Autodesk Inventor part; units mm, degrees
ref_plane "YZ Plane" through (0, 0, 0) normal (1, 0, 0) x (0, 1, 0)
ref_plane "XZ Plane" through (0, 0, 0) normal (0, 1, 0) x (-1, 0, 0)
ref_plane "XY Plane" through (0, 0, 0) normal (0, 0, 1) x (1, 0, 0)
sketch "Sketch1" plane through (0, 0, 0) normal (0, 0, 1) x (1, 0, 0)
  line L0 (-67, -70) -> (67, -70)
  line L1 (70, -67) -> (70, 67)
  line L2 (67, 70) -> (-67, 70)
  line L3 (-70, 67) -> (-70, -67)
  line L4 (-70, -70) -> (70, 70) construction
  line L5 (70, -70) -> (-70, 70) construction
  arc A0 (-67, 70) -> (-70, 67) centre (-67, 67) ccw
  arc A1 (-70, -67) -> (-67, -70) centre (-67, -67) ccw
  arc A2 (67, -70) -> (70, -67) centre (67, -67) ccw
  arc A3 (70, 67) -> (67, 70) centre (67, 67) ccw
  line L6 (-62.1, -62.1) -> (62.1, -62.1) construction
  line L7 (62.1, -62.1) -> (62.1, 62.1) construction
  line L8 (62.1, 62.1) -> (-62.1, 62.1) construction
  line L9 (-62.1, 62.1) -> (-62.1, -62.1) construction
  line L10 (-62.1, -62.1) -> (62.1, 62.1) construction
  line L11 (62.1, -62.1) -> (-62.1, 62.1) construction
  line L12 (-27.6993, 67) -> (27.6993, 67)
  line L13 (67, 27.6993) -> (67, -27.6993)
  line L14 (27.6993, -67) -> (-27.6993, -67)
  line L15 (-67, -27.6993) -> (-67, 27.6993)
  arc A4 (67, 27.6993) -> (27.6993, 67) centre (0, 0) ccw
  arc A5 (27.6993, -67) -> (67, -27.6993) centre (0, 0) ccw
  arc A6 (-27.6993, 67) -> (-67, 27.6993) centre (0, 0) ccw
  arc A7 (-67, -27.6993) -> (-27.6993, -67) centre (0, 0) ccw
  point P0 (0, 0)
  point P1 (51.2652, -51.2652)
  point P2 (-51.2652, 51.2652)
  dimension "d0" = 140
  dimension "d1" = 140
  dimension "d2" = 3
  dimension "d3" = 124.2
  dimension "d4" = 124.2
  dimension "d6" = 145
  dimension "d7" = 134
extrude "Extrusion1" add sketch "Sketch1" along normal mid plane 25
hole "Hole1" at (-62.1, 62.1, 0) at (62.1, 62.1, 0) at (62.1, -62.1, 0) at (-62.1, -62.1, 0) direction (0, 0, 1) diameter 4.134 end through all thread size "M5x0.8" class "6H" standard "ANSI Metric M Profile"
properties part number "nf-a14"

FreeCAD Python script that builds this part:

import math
import FreeCAD as App
import Part
import Sketcher

V = App.Vector

doc = App.newDocument("Part")
body = doc.addObject("PartDesign::Body", "Body")

# Sketch on XY plane
sketch1 = body.newObject("Sketcher::SketchObject", "Sketch")
sketch1.AttachmentSupport = (doc.getObject("XY_Plane"), [""])
sketch1.MapMode = "FlatFace"
sketch1.addGeometry(Part.ArcOfCircle(Part.Circle(V(-67, -67, 0), V(0, 0, 1), 3), math.radians(180), math.radians(270)), False)
sketch1.addGeometry(Part.LineSegment(V(-67, -70, 0), V(67, -70, 0)), False)
sketch1.addGeometry(Part.ArcOfCircle(Part.Circle(V(67, -67, 0), V(0, 0, 1), 3), math.radians(-90), math.radians(0)), False)
sketch1.addGeometry(Part.LineSegment(V(70, -67, 0), V(70, 67, 0)), False)
sketch1.addGeometry(Part.ArcOfCircle(Part.Circle(V(67, 67, 0), V(0, 0, 1), 3), math.radians(0), math.radians(90)), False)
sketch1.addGeometry(Part.LineSegment(V(67, 70, 0), V(-67, 70, 0)), False)
sketch1.addGeometry(Part.ArcOfCircle(Part.Circle(V(-67, 67, 0), V(0, 0, 1), 3), math.radians(90), math.radians(180)), False)
sketch1.addGeometry(Part.LineSegment(V(-70, 67, 0), V(-70, -67, 0)), False)
sketch1.addGeometry(Part.ArcOfCircle(Part.Circle(V(0, 0, 0), V(0, 0, 1), 72.5), math.radians(112), math.radians(158)), False)
sketch1.addGeometry(Part.LineSegment(V(-27.7, 67, 0), V(27.7, 67, 0)), False)
sketch1.addGeometry(Part.ArcOfCircle(Part.Circle(V(0, 0, 0), V(0, 0, 1), 72.5), math.radians(22), math.radians(68)), False)
sketch1.addGeometry(Part.LineSegment(V(67, 27.7, 0), V(67, -27.7, 0)), False)
sketch1.addGeometry(Part.ArcOfCircle(Part.Circle(V(0, 0, 0), V(0, 0, 1), 72.5), math.radians(-68), math.radians(-22)), False)
sketch1.addGeometry(Part.LineSegment(V(27.7, -67, 0), V(-27.7, -67, 0)), False)
sketch1.addGeometry(Part.ArcOfCircle(Part.Circle(V(0, 0, 0), V(0, 0, 1), 72.5), math.radians(-158), math.radians(-112)), False)
sketch1.addGeometry(Part.LineSegment(V(-67, -27.7, 0), V(-67, 27.7, 0)), False)
sketch1.addConstraint(Sketcher.Constraint("Tangent", 0, 2, 1, 1))
sketch1.addConstraint(Sketcher.Constraint("Tangent", 1, 2, 2, 1))
sketch1.addConstraint(Sketcher.Constraint("Tangent", 2, 2, 3, 1))
sketch1.addConstraint(Sketcher.Constraint("Tangent", 3, 2, 4, 1))
sketch1.addConstraint(Sketcher.Constraint("Tangent", 4, 2, 5, 1))
sketch1.addConstraint(Sketcher.Constraint("Tangent", 5, 2, 6, 1))
sketch1.addConstraint(Sketcher.Constraint("Tangent", 6, 2, 7, 1))
sketch1.addConstraint(Sketcher.Constraint("Tangent", 7, 2, 0, 1))
sketch1.addConstraint(Sketcher.Constraint("Coincident", 8, 1, 9, 1))
sketch1.addConstraint(Sketcher.Constraint("Coincident", 9, 2, 10, 2))
sketch1.addConstraint(Sketcher.Constraint("Coincident", 10, 1, 11, 1))
sketch1.addConstraint(Sketcher.Constraint("Coincident", 11, 2, 12, 2))
sketch1.addConstraint(Sketcher.Constraint("Coincident", 12, 1, 13, 1))
sketch1.addConstraint(Sketcher.Constraint("Coincident", 13, 2, 14, 2))
sketch1.addConstraint(Sketcher.Constraint("Coincident", 14, 1, 15, 1))
sketch1.addConstraint(Sketcher.Constraint("Coincident", 15, 2, 8, 2))
sketch1.addConstraint(Sketcher.Constraint("Horizontal", 1))
sketch1.addConstraint(Sketcher.Constraint("Vertical", 3))
sketch1.addConstraint(Sketcher.Constraint("Horizontal", 5))
sketch1.addConstraint(Sketcher.Constraint("Vertical", 7))
sketch1.addConstraint(Sketcher.Constraint("Horizontal", 9))
sketch1.addConstraint(Sketcher.Constraint("Vertical", 11))
sketch1.addConstraint(Sketcher.Constraint("Horizontal", 13))
sketch1.addConstraint(Sketcher.Constraint("Vertical", 15))
sketch1.addConstraint(Sketcher.Constraint("Coincident", 8, 3, -1, 1))
sketch1.addConstraint(Sketcher.Constraint("Coincident", 10, 3, -1, 1))
sketch1.addConstraint(Sketcher.Constraint("Coincident", 12, 3, -1, 1))
sketch1.addConstraint(Sketcher.Constraint("Coincident", 14, 3, -1, 1))
sketch1.addConstraint(Sketcher.Constraint("Equal", 0, 2))
sketch1.addConstraint(Sketcher.Constraint("Equal", 2, 4))
sketch1.addConstraint(Sketcher.Constraint("Equal", 4, 6))
sketch1.addConstraint(Sketcher.Constraint("Equal", 8, 10))
sketch1.addConstraint(Sketcher.Constraint("Equal", 10, 12))
sketch1.addConstraint(Sketcher.Constraint("Equal", 12, 14))
sketch1.addConstraint(Sketcher.Constraint("Symmetric", 0, 3, 4, 3, -1, 1))
sketch1.addConstraint(Sketcher.Constraint("Horizontal", 6, 2, 8, 1))
sketch1.addConstraint(Sketcher.Constraint("Horizontal", 7, 2, 12, 1))
sketch1.addConstraint(Sketcher.Constraint("Horizontal", 11, 2, 14, 1))
sketch1.addConstraint(Sketcher.Constraint("Vertical", 4, 2, 10, 1))
sketch1.addConstraint(Sketcher.Constraint("Equal", 5, 3))
sketch1.addConstraint(Sketcher.Constraint("Radius", 0, 3.0))
sketch1.addConstraint(Sketcher.Constraint("Radius", 8, 72.5))
sketch1.addConstraint(Sketcher.Constraint("DistanceX", 1, 1, 1, 2, 134.0))
pad1 = body.newObject("PartDesign::Pad", "Pad")
pad1.Profile = sketch1
pad1.Length = 25
pad1.Midplane = True

# Sketch on XY plane
sketch2 = body.newObject("Sketcher::SketchObject", "Sketch001")
sketch2.AttachmentSupport = (doc.getObject("XY_Plane"), [""])
sketch2.MapMode = "FlatFace"
sketch2.addGeometry(Part.Circle(V(-62.1, 62.1, 0), V(0, 0, 1), 2.1), False)
sketch2.addGeometry(Part.Circle(V(62.1, 62.1, 0), V(0, 0, 1), 2.1), False)
sketch2.addGeometry(Part.Circle(V(62.1, -62.1, 0), V(0, 0, 1), 2.1), False)
sketch2.addGeometry(Part.Circle(V(-62.1, -62.1, 0), V(0, 0, 1), 2.1), False)
sketch2.addConstraint(Sketcher.Constraint("Equal", 0, 1))
sketch2.addConstraint(Sketcher.Constraint("Equal", 1, 2))
sketch2.addConstraint(Sketcher.Constraint("Equal", 2, 3))
sketch2.addConstraint(Sketcher.Constraint("Symmetric", 0, 3, 2, 3, -1, 1))
sketch2.addConstraint(Sketcher.Constraint("Symmetric", 1, 3, 3, 3, -1, 1))
sketch2.addConstraint(Sketcher.Constraint("Symmetric", 0, 3, 1, 3, -2))
sketch2.addConstraint(Sketcher.Constraint("Diameter", 0, 4.134))
sketch2.addConstraint(Sketcher.Constraint("DistanceX", 0, 3, -1, 1, 62.1))
sketch2.addConstraint(Sketcher.Constraint("DistanceY", -1, 1, 0, 3, 62.1))
doc.recompute()
hole = body.newObject("PartDesign::Hole", "Hole")
hole.Profile = sketch2
hole.ThreadType = "None"
hole.Diameter = 4.134
hole.DepthType = "ThroughAll"
hole.Reversed = True

doc.recompute()
